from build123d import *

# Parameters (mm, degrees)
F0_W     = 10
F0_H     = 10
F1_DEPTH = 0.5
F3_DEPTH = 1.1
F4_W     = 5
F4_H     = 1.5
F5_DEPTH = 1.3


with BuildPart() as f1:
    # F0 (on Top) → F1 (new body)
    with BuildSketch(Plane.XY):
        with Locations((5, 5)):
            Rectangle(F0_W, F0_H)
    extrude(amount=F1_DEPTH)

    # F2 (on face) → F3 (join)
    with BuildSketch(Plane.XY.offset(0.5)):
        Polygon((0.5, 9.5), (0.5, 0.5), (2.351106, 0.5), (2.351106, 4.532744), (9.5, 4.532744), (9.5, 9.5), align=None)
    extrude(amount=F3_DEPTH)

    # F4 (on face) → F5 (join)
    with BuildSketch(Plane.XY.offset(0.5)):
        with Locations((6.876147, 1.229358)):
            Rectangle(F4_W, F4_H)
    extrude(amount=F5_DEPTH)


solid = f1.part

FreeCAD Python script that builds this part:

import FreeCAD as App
import Part
import Sketcher

V = App.Vector

doc = App.newDocument("Part")
params = doc.addObject("Spreadsheet::Sheet", "Params")
for row, (alias, value) in enumerate([
    ("sketch1_width", "10 mm"),
    ("pad1_length", "0.5 mm"),
    ("sketch2_width", "9 mm"),
    ("pad2_length", "1.1 mm"),
    ("sketch3_width", "5 mm"),
    ("sketch3_height", "1.5 mm"),
    ("pad3_length", "1.3 mm"),
], start=1):
    params.set(f"A{row}", alias)
    params.set(f"B{row}", "=" + value)
    params.setAlias(f"B{row}", alias)

body = doc.addObject("PartDesign::Body", "Body")

sketch1 = body.newObject("Sketcher::SketchObject", "Sketch")
sketch1.AttachmentSupport = (doc.getObject("XY_Plane"), [""])
sketch1.MapMode = "FlatFace"
sketch1.addGeometry(Part.LineSegment(V(0, 10, 0), V(0, 0, 0)), False)
sketch1.addGeometry(Part.LineSegment(V(0, 0, 0), V(10, 0, 0)), False)
sketch1.addGeometry(Part.LineSegment(V(10, 0, 0), V(10, 10, 0)), False)
sketch1.addGeometry(Part.LineSegment(V(10, 10, 0), V(0, 10, 0)), False)
sketch1.addConstraint(Sketcher.Constraint("Coincident", 0, 2, 1, 1))
sketch1.addConstraint(Sketcher.Constraint("Coincident", 1, 2, 2, 1))
sketch1.addConstraint(Sketcher.Constraint("Coincident", 2, 2, 3, 1))
sketch1.addConstraint(Sketcher.Constraint("Coincident", 3, 2, 0, 1))
sketch1.addConstraint(Sketcher.Constraint("Vertical", 0))
sketch1.addConstraint(Sketcher.Constraint("Horizontal", 1))
sketch1.addConstraint(Sketcher.Constraint("Vertical", 2))
sketch1.addConstraint(Sketcher.Constraint("Horizontal", 3))
sketch1.addConstraint(Sketcher.Constraint("Coincident", 0, 2, -1, 1))
sketch1.addConstraint(Sketcher.Constraint("Equal", 3, 0))
sketch1.addConstraint(Sketcher.Constraint("DistanceX", 1, 1, 1, 2, 10.0))
sketch1.setExpression("Constraints[10]", "Params.sketch1_width")
pad1 = body.newObject("PartDesign::Pad", "Pad")
pad1.Profile = sketch1
pad1.setExpression("Length", "Params.pad1_length")

sketch2 = body.newObject("Sketcher::SketchObject", "Sketch001")
sketch2.AttachmentSupport = (doc.getObject("XY_Plane"), [""])
sketch2.MapMode = "FlatFace"
sketch2.AttachmentOffset = App.Placement(V(0, 0, 0.5), App.Rotation())
sketch2.addGeometry(Part.LineSegment(V(0.5, 9.5, 0), V(0.5, 0.5, 0)), False)
sketch2.addGeometry(Part.LineSegment(V(0.5, 0.5, 0), V(2.4, 0.5, 0)), False)
sketch2.addGeometry(Part.LineSegment(V(2.4, 0.5, 0), V(2.4, 4.5, 0)), False)
sketch2.addGeometry(Part.LineSegment(V(2.4, 4.5, 0), V(9.5, 4.5, 0)), False)
sketch2.addGeometry(Part.LineSegment(V(9.5, 4.5, 0), V(9.5, 9.5, 0)), False)
sketch2.addGeometry(Part.LineSegment(V(9.5, 9.5, 0), V(0.5, 9.5, 0)), False)
sketch2.addConstraint(Sketcher.Constraint("Coincident", 0, 2, 1, 1))
sketch2.addConstraint(Sketcher.Constraint("Coincident", 1, 2, 2, 1))
sketch2.addConstraint(Sketcher.Constraint("Coincident", 2, 2, 3, 1))
sketch2.addConstraint(Sketcher.Constraint("Coincident", 3, 2, 4, 1))
sketch2.addConstraint(Sketcher.Constraint("Coincident", 4, 2, 5, 1))
sketch2.addConstraint(Sketcher.Constraint("Coincident", 5, 2, 0, 1))
sketch2.addConstraint(Sketcher.Constraint("Vertical", 0))
sketch2.addConstraint(Sketcher.Constraint("Horizontal", 1))
sketch2.addConstraint(Sketcher.Constraint("Vertical", 2))
sketch2.addConstraint(Sketcher.Constraint("Horizontal", 3))
sketch2.addConstraint(Sketcher.Constraint("Vertical", 4))
sketch2.addConstraint(Sketcher.Constraint("Horizontal", 5))
sketch2.addConstraint(Sketcher.Constraint("Equal", 5, 0))
sketch2.addConstraint(Sketcher.Constraint("DistanceX", 5, 2, 5, 1, 9.0))
sketch2.addConstraint(Sketcher.Constraint("DistanceX", -1, 1, 0, 2, 0.5))
sketch2.addConstraint(Sketcher.Constraint("DistanceY", -1, 1, 0, 2, 0.5))
sketch2.addConstraint(Sketcher.Constraint("DistanceX", 1, 1, 1, 2, 1.851106))
sketch2.addConstraint(Sketcher.Constraint("DistanceY", 2, 1, 2, 2, 4.032744))
sketch2.setExpression("Constraints[13]", "Params.sketch2_width")
pad2 = body.newObject("PartDesign::Pad", "Pad001")
pad2.Profile = sketch2
pad2.setExpression("Length", "Params.pad2_length")

sketch3 = body.newObject("Sketcher::SketchObject", "Sketch002")
sketch3.AttachmentSupport = (doc.getObject("XY_Plane"), [""])
sketch3.MapMode = "FlatFace"
sketch3.AttachmentOffset = App.Placement(V(0, 0, 0.5), App.Rotation())
sketch3.addGeometry(Part.LineSegment(V(4.4, 2, 0), V(4.4, 0.5, 0)), False)
sketch3.addGeometry(Part.LineSegment(V(4.4, 0.5, 0), V(9.4, 0.5, 0)), False)
sketch3.addGeometry(Part.LineSegment(V(9.4, 0.5, 0), V(9.4, 2, 0)), False)
sketch3.addGeometry(Part.LineSegment(V(9.4, 2, 0), V(4.4, 2, 0)), False)
sketch3.addConstraint(Sketcher.Constraint("Coincident", 0, 2, 1, 1))
sketch3.addConstraint(Sketcher.Constraint("Coincident", 1, 2, 2, 1))
sketch3.addConstraint(Sketcher.Constraint("Coincident", 2, 2, 3, 1))
sketch3.addConstraint(Sketcher.Constraint("Coincident", 3, 2, 0, 1))
sketch3.addConstraint(Sketcher.Constraint("Vertical", 0))
sketch3.addConstraint(Sketcher.Constraint("Horizontal", 1))
sketch3.addConstraint(Sketcher.Constraint("Vertical", 2))
sketch3.addConstraint(Sketcher.Constraint("Horizontal", 3))
sketch3.addConstraint(Sketcher.Constraint("DistanceX", 1, 1, 1, 2, 5.0))
sketch3.addConstraint(Sketcher.Constraint("DistanceY", 0, 2, 0, 1, 1.5))
sketch3.addConstraint(Sketcher.Constraint("DistanceX", -1, 1, 0, 2, 4.376147))
sketch3.addConstraint(Sketcher.Constraint("DistanceY", -1, 1, 0, 2, 0.479358))
sketch3.setExpression("Constraints[8]", "Params.sketch3_width")
sketch3.setExpression("Constraints[9]", "Params.sketch3_height")
pad3 = body.newObject("PartDesign::Pad", "Pad002")
pad3.Profile = sketch3
pad3.setExpression("Length", "Params.pad3_length")

doc.recompute()
